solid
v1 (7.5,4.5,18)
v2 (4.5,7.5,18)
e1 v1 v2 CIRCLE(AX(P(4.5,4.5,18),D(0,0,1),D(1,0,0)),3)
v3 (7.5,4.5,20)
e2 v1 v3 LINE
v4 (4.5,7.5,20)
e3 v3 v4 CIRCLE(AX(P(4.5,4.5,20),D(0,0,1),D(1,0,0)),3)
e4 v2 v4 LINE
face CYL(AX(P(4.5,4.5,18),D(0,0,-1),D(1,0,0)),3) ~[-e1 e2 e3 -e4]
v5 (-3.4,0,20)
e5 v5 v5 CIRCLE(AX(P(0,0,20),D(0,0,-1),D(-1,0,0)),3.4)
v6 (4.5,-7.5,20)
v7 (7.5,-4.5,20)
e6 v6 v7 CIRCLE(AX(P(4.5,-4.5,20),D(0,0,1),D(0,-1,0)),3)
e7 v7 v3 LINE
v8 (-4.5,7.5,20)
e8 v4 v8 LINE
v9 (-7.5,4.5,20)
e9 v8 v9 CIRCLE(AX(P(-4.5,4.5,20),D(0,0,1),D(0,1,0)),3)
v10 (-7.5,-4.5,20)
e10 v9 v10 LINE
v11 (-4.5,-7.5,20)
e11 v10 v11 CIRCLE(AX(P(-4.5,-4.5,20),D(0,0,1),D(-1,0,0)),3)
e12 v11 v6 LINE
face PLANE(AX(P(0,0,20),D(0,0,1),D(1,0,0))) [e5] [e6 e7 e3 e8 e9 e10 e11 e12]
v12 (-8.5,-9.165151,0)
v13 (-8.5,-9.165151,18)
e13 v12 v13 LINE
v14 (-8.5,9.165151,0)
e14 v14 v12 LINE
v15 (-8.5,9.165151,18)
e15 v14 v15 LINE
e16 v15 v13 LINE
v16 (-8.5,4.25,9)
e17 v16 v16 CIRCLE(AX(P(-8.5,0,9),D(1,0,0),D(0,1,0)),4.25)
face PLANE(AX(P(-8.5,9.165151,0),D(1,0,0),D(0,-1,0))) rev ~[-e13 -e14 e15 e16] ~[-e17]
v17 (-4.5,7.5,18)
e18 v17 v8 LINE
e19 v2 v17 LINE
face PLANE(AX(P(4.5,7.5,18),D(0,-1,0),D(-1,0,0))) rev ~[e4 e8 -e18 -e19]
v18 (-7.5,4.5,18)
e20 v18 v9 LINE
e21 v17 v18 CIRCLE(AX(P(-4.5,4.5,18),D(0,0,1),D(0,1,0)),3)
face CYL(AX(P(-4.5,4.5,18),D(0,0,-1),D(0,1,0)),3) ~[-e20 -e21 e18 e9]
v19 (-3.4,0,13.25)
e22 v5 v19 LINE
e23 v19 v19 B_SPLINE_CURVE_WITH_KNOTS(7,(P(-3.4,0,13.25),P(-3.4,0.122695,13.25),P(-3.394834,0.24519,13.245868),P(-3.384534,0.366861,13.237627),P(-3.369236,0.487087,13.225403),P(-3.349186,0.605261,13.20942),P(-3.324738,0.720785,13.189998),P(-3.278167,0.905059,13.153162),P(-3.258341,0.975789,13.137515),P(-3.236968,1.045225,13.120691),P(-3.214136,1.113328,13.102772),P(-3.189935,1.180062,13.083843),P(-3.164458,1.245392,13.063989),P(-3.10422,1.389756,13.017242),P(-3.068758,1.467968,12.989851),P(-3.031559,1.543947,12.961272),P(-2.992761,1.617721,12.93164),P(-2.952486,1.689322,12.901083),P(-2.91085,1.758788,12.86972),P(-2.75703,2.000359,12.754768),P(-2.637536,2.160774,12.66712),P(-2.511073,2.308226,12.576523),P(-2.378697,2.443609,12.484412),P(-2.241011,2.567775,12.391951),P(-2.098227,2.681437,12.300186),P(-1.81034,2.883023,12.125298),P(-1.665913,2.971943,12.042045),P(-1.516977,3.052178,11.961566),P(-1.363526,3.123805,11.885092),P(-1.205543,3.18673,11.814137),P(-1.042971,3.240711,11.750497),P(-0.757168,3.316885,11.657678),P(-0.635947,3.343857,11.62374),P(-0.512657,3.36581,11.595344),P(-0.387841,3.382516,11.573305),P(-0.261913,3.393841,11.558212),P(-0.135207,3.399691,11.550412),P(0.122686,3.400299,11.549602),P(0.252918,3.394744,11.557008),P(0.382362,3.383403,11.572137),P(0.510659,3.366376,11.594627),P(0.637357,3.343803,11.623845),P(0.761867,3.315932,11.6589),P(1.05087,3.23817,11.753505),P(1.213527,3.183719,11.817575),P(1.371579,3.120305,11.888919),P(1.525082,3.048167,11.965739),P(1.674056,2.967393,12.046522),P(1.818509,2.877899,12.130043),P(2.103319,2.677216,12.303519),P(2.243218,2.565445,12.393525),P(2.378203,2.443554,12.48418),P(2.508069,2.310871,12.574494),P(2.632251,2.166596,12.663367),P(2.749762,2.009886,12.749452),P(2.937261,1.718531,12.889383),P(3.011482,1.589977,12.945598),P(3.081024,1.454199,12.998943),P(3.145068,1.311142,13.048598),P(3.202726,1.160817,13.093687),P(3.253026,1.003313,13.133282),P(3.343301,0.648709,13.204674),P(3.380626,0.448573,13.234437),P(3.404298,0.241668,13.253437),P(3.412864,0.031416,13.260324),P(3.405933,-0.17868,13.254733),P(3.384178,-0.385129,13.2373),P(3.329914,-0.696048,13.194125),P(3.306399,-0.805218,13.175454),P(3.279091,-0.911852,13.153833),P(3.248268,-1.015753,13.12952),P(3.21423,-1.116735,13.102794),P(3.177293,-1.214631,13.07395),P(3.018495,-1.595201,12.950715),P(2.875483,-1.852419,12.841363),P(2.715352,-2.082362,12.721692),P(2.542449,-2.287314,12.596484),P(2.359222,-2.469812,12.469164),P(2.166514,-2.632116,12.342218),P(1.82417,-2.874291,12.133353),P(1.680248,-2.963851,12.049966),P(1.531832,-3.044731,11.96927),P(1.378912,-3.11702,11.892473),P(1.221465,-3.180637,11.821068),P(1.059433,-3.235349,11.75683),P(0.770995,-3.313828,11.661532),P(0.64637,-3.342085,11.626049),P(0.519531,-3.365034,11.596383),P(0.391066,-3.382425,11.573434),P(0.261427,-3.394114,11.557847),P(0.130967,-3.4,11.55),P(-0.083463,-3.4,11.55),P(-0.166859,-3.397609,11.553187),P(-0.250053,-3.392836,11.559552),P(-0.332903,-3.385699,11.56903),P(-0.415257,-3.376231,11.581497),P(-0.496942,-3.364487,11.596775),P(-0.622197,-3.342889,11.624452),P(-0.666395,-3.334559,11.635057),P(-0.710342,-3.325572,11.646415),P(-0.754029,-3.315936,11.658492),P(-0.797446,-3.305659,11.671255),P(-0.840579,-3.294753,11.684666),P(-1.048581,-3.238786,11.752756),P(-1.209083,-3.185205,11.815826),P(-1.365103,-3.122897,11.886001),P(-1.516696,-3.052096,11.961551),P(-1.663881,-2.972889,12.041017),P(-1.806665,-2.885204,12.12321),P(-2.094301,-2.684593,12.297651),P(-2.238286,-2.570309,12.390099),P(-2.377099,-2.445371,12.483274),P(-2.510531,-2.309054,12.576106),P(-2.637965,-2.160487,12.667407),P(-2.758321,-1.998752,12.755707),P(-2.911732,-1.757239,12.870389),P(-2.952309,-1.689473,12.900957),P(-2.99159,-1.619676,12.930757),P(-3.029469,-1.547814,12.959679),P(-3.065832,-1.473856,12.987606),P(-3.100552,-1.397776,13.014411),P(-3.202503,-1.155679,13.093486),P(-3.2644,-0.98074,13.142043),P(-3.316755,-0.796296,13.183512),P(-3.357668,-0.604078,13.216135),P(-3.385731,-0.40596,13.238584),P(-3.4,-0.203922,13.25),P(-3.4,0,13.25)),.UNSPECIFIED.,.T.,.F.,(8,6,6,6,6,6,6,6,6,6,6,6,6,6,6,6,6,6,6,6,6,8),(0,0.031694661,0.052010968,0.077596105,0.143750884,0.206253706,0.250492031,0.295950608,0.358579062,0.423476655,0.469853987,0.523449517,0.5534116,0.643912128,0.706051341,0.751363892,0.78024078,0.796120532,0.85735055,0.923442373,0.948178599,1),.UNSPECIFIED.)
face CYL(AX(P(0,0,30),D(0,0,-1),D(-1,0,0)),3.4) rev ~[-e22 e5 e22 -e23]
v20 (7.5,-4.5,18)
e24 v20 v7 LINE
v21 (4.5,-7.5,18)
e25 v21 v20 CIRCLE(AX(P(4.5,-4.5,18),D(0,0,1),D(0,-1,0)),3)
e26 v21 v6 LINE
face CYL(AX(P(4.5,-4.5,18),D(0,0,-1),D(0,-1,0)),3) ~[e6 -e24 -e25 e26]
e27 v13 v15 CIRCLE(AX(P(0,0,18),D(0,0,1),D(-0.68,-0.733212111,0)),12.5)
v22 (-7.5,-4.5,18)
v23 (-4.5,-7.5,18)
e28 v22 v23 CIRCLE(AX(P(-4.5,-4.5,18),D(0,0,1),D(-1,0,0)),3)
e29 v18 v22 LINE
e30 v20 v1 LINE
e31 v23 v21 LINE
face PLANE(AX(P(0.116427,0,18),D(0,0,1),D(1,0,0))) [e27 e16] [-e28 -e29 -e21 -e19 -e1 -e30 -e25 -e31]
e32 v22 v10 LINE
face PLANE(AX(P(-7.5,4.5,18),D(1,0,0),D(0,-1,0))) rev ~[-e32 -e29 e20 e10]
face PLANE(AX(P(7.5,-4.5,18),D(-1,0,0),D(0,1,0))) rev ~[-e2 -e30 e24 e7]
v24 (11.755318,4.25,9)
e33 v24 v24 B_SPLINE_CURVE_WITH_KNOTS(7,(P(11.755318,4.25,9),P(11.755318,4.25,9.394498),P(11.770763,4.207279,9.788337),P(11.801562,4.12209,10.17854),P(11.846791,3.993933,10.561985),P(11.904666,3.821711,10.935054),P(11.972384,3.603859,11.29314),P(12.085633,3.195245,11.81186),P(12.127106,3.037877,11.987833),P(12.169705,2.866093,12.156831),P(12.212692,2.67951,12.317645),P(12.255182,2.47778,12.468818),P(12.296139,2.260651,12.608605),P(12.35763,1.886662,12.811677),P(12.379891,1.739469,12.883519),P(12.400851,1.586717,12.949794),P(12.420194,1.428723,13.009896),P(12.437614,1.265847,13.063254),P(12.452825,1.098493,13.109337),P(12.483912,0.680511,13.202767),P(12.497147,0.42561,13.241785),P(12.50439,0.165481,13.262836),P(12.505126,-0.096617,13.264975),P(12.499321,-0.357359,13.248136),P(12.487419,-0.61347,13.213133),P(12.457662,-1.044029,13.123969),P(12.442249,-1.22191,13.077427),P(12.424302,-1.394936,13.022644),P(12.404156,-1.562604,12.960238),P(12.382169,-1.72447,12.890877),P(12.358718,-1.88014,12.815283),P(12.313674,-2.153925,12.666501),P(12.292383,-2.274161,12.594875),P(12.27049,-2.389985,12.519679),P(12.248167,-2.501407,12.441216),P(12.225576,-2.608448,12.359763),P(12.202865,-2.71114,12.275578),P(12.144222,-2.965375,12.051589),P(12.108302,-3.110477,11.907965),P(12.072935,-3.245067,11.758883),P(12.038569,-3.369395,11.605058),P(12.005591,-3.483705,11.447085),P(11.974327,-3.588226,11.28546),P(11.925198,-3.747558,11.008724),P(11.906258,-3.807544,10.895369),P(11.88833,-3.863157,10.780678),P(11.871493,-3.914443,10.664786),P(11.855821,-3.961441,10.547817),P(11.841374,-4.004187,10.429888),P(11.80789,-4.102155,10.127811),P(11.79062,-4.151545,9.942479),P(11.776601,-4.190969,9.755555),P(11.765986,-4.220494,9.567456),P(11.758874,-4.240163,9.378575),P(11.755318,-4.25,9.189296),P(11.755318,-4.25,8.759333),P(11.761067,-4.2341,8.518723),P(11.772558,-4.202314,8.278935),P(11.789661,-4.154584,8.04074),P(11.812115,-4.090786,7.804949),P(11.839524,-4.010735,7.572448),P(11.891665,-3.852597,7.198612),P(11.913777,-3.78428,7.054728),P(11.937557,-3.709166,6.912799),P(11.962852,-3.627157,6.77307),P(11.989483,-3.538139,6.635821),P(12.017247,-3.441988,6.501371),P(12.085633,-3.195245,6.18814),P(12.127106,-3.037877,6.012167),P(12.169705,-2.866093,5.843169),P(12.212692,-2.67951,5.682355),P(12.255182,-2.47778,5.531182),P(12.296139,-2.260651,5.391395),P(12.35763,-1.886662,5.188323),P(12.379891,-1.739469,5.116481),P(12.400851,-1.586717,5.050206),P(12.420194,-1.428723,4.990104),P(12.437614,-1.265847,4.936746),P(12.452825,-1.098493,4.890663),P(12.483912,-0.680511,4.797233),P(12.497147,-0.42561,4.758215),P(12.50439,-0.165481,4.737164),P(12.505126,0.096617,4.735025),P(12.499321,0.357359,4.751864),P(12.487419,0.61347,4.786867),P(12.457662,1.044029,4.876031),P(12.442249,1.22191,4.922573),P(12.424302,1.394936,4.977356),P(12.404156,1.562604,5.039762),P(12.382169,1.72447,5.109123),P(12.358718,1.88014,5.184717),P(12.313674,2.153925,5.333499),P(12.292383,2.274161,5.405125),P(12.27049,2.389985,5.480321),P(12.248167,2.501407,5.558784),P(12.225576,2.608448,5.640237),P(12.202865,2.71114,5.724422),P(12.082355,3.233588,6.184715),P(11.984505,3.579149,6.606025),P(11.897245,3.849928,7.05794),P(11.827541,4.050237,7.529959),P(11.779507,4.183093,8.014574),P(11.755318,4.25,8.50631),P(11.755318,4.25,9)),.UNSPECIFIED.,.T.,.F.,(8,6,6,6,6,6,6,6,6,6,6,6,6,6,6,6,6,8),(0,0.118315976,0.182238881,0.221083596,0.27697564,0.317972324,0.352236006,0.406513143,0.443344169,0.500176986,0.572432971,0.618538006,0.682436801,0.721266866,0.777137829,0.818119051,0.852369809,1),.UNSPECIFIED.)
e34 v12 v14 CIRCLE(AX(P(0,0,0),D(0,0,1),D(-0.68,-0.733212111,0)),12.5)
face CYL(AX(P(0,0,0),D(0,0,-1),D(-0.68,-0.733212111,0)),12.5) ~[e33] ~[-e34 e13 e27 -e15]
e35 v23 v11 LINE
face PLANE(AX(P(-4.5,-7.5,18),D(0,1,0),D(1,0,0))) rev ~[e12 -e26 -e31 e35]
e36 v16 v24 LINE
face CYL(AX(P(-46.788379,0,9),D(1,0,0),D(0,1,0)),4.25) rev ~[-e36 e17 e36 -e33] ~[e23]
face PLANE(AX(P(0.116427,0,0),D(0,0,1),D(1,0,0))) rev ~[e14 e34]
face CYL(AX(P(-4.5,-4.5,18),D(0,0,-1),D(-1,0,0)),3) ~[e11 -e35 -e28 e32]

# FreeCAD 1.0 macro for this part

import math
import FreeCAD as App
import Part
import Sketcher

V = App.Vector
Q = App.Units.Quantity

doc = App.newDocument("Part")
body = doc.addObject("PartDesign::Body", "Body")

# Sketch on XY plane
sketch1 = body.newObject("Sketcher::SketchObject", "Sketch")
sketch1.AttachmentSupport = (doc.getObject("XY_Plane"), [""])
sketch1.MapMode = "FlatFace"
sketch1.addGeometry([
    Part.LineSegment(V(-8, 9, 0), V(-8, -9, 0)),
    Part.ArcOfCircle(Part.Circle(V(0, 0, 0), V(0, 0, 1), 12), math.radians(-133), math.radians(133)),
], False)
sketch1.addConstraint([
    Sketcher.Constraint("Coincident", 0, 1, 1, 2),
    Sketcher.Constraint("Coincident", 1, 1, 0, 2),
    Sketcher.Constraint("Vertical", 0),
    Sketcher.Constraint("Coincident", 1, 3, -1, 1),
    Sketcher.Constraint("Radius", 1, Q("12.5 mm")),
    Sketcher.Constraint("DistanceX", 0, 1, -1, 1, Q("8.5 mm")),
])
pad1 = body.newObject("PartDesign::Pad", "Pad")
pad1.Profile = sketch1
pad1.Length = 18

# Sketch on XY plane
sketch2 = body.newObject("Sketcher::SketchObject", "Sketch001")
sketch2.AttachmentSupport = (doc.getObject("XY_Plane"), [""])
sketch2.MapMode = "FlatFace"
sketch2.AttachmentOffset = App.Placement(V(0, 0, 18), App.Rotation())
sketch2.addGeometry([
    Part.LineSegment(V(-4.5, -7.5, 0), V(4.5, -7.5, 0)),  # 0
    Part.ArcOfCircle(Part.Circle(V(4.5, -4.5, 0), V(0, 0, 1), 3), math.radians(-90), math.radians(0)),  # 1
    Part.LineSegment(V(7.5, -4.5, 0), V(7.5, 4.5, 0)),  # 2
    Part.ArcOfCircle(Part.Circle(V(4.5, 4.5, 0), V(0, 0, 1), 3), math.radians(0), math.radians(90)),  # 3
    Part.LineSegment(V(4.5, 7.5, 0), V(-4.5, 7.5, 0)),  # 4
    Part.ArcOfCircle(Part.Circle(V(-4.5, 4.5, 0), V(0, 0, 1), 3), math.radians(90), math.radians(180)),  # 5
    Part.LineSegment(V(-7.5, 4.5, 0), V(-7.5, -4.5, 0)),  # 6
    Part.ArcOfCircle(Part.Circle(V(-4.5, -4.5, 0), V(0, 0, 1), 3), math.radians(180), math.radians(270)),  # 7
], False)
sketch2.addConstraint([
    Sketcher.Constraint("Tangent", 0, 2, 1, 1),
    Sketcher.Constraint("Tangent", 1, 2, 2, 1),
    Sketcher.Constraint("Tangent", 2, 2, 3, 1),
    Sketcher.Constraint("Tangent", 3, 2, 4, 1),
    Sketcher.Constraint("Tangent", 4, 2, 5, 1),
    Sketcher.Constraint("Tangent", 5, 2, 6, 1),
    Sketcher.Constraint("Tangent", 6, 2, 7, 1),
    Sketcher.Constraint("Tangent", 7, 2, 0, 1),
    Sketcher.Constraint("Horizontal", 0),
    Sketcher.Constraint("Vertical", 2),
    Sketcher.Constraint("Horizontal", 4),
    Sketcher.Constraint("Vertical", 6),
    Sketcher.Constraint("Equal", 1, 3),
    Sketcher.Constraint("Equal", 3, 5),
    Sketcher.Constraint("Equal", 5, 7),
    Sketcher.Constraint("Symmetric", 1, 3, 5, 3, -1, 1),
    Sketcher.Constraint("Equal", 4, 2),
    Sketcher.Constraint("Radius", 1, Q("3 mm")),
    Sketcher.Constraint("DistanceX", 0, 1, 0, 2, Q("9 mm")),
])
pad2 = body.newObject("PartDesign::Pad", "Pad001")
pad2.Profile = sketch2
pad2.Length = 2

# Sketch on YZ plane
sketch3 = body.newObject("Sketcher::SketchObject", "Sketch002")
sketch3.AttachmentSupport = (doc.getObject("YZ_Plane"), [""])
sketch3.MapMode = "FlatFace"
sketch3.AttachmentOffset = App.Placement(V(0, 0, -8.5), App.Rotation())
sketch3.addGeometry(Part.Circle(V(0, 9, 0), V(0, 0, 1), 4.2), False)
sketch3.addConstraint([
    Sketcher.Constraint("PointOnObject", 0, 3, -2),
    Sketcher.Constraint("Diameter", 0, Q("8.5 mm")),
    Sketcher.Constraint("DistanceY", -1, 1, 0, 3, Q("9 mm")),
])
doc.recompute()
hole = body.newObject("PartDesign::Hole", "Hole")
hole.Profile = sketch3
hole.ThreadType = "None"
hole.Diameter = 8.5
hole.DepthType = "ThroughAll"
hole.Reversed = True

# Sketch on XY plane
sketch4 = body.newObject("Sketcher::SketchObject", "Sketch003")
sketch4.AttachmentSupport = (doc.getObject("XY_Plane"), [""])
sketch4.MapMode = "FlatFace"
sketch4.AttachmentOffset = App.Placement(V(0, 0, 20), App.Rotation())
sketch4.addGeometry(Part.Circle(V(0, 0, 0), V(0, 0, 1), 3.4), False)
sketch4.addConstraint([
    Sketcher.Constraint("Coincident", 0, 3, -1, 1),
    Sketcher.Constraint("Diameter", 0, Q("6.8 mm")),
])
doc.recompute()
hole2 = body.newObject("PartDesign::Hole", "Hole001")
hole2.Profile = sketch4
hole2.ThreadType = "None"
hole2.Diameter = 6.8
hole2.DepthType = "Dimension"
hole2.Depth = 10
hole2.DrillPoint = "Angled"
hole2.DrillPointAngle = 118

doc.recompute()
